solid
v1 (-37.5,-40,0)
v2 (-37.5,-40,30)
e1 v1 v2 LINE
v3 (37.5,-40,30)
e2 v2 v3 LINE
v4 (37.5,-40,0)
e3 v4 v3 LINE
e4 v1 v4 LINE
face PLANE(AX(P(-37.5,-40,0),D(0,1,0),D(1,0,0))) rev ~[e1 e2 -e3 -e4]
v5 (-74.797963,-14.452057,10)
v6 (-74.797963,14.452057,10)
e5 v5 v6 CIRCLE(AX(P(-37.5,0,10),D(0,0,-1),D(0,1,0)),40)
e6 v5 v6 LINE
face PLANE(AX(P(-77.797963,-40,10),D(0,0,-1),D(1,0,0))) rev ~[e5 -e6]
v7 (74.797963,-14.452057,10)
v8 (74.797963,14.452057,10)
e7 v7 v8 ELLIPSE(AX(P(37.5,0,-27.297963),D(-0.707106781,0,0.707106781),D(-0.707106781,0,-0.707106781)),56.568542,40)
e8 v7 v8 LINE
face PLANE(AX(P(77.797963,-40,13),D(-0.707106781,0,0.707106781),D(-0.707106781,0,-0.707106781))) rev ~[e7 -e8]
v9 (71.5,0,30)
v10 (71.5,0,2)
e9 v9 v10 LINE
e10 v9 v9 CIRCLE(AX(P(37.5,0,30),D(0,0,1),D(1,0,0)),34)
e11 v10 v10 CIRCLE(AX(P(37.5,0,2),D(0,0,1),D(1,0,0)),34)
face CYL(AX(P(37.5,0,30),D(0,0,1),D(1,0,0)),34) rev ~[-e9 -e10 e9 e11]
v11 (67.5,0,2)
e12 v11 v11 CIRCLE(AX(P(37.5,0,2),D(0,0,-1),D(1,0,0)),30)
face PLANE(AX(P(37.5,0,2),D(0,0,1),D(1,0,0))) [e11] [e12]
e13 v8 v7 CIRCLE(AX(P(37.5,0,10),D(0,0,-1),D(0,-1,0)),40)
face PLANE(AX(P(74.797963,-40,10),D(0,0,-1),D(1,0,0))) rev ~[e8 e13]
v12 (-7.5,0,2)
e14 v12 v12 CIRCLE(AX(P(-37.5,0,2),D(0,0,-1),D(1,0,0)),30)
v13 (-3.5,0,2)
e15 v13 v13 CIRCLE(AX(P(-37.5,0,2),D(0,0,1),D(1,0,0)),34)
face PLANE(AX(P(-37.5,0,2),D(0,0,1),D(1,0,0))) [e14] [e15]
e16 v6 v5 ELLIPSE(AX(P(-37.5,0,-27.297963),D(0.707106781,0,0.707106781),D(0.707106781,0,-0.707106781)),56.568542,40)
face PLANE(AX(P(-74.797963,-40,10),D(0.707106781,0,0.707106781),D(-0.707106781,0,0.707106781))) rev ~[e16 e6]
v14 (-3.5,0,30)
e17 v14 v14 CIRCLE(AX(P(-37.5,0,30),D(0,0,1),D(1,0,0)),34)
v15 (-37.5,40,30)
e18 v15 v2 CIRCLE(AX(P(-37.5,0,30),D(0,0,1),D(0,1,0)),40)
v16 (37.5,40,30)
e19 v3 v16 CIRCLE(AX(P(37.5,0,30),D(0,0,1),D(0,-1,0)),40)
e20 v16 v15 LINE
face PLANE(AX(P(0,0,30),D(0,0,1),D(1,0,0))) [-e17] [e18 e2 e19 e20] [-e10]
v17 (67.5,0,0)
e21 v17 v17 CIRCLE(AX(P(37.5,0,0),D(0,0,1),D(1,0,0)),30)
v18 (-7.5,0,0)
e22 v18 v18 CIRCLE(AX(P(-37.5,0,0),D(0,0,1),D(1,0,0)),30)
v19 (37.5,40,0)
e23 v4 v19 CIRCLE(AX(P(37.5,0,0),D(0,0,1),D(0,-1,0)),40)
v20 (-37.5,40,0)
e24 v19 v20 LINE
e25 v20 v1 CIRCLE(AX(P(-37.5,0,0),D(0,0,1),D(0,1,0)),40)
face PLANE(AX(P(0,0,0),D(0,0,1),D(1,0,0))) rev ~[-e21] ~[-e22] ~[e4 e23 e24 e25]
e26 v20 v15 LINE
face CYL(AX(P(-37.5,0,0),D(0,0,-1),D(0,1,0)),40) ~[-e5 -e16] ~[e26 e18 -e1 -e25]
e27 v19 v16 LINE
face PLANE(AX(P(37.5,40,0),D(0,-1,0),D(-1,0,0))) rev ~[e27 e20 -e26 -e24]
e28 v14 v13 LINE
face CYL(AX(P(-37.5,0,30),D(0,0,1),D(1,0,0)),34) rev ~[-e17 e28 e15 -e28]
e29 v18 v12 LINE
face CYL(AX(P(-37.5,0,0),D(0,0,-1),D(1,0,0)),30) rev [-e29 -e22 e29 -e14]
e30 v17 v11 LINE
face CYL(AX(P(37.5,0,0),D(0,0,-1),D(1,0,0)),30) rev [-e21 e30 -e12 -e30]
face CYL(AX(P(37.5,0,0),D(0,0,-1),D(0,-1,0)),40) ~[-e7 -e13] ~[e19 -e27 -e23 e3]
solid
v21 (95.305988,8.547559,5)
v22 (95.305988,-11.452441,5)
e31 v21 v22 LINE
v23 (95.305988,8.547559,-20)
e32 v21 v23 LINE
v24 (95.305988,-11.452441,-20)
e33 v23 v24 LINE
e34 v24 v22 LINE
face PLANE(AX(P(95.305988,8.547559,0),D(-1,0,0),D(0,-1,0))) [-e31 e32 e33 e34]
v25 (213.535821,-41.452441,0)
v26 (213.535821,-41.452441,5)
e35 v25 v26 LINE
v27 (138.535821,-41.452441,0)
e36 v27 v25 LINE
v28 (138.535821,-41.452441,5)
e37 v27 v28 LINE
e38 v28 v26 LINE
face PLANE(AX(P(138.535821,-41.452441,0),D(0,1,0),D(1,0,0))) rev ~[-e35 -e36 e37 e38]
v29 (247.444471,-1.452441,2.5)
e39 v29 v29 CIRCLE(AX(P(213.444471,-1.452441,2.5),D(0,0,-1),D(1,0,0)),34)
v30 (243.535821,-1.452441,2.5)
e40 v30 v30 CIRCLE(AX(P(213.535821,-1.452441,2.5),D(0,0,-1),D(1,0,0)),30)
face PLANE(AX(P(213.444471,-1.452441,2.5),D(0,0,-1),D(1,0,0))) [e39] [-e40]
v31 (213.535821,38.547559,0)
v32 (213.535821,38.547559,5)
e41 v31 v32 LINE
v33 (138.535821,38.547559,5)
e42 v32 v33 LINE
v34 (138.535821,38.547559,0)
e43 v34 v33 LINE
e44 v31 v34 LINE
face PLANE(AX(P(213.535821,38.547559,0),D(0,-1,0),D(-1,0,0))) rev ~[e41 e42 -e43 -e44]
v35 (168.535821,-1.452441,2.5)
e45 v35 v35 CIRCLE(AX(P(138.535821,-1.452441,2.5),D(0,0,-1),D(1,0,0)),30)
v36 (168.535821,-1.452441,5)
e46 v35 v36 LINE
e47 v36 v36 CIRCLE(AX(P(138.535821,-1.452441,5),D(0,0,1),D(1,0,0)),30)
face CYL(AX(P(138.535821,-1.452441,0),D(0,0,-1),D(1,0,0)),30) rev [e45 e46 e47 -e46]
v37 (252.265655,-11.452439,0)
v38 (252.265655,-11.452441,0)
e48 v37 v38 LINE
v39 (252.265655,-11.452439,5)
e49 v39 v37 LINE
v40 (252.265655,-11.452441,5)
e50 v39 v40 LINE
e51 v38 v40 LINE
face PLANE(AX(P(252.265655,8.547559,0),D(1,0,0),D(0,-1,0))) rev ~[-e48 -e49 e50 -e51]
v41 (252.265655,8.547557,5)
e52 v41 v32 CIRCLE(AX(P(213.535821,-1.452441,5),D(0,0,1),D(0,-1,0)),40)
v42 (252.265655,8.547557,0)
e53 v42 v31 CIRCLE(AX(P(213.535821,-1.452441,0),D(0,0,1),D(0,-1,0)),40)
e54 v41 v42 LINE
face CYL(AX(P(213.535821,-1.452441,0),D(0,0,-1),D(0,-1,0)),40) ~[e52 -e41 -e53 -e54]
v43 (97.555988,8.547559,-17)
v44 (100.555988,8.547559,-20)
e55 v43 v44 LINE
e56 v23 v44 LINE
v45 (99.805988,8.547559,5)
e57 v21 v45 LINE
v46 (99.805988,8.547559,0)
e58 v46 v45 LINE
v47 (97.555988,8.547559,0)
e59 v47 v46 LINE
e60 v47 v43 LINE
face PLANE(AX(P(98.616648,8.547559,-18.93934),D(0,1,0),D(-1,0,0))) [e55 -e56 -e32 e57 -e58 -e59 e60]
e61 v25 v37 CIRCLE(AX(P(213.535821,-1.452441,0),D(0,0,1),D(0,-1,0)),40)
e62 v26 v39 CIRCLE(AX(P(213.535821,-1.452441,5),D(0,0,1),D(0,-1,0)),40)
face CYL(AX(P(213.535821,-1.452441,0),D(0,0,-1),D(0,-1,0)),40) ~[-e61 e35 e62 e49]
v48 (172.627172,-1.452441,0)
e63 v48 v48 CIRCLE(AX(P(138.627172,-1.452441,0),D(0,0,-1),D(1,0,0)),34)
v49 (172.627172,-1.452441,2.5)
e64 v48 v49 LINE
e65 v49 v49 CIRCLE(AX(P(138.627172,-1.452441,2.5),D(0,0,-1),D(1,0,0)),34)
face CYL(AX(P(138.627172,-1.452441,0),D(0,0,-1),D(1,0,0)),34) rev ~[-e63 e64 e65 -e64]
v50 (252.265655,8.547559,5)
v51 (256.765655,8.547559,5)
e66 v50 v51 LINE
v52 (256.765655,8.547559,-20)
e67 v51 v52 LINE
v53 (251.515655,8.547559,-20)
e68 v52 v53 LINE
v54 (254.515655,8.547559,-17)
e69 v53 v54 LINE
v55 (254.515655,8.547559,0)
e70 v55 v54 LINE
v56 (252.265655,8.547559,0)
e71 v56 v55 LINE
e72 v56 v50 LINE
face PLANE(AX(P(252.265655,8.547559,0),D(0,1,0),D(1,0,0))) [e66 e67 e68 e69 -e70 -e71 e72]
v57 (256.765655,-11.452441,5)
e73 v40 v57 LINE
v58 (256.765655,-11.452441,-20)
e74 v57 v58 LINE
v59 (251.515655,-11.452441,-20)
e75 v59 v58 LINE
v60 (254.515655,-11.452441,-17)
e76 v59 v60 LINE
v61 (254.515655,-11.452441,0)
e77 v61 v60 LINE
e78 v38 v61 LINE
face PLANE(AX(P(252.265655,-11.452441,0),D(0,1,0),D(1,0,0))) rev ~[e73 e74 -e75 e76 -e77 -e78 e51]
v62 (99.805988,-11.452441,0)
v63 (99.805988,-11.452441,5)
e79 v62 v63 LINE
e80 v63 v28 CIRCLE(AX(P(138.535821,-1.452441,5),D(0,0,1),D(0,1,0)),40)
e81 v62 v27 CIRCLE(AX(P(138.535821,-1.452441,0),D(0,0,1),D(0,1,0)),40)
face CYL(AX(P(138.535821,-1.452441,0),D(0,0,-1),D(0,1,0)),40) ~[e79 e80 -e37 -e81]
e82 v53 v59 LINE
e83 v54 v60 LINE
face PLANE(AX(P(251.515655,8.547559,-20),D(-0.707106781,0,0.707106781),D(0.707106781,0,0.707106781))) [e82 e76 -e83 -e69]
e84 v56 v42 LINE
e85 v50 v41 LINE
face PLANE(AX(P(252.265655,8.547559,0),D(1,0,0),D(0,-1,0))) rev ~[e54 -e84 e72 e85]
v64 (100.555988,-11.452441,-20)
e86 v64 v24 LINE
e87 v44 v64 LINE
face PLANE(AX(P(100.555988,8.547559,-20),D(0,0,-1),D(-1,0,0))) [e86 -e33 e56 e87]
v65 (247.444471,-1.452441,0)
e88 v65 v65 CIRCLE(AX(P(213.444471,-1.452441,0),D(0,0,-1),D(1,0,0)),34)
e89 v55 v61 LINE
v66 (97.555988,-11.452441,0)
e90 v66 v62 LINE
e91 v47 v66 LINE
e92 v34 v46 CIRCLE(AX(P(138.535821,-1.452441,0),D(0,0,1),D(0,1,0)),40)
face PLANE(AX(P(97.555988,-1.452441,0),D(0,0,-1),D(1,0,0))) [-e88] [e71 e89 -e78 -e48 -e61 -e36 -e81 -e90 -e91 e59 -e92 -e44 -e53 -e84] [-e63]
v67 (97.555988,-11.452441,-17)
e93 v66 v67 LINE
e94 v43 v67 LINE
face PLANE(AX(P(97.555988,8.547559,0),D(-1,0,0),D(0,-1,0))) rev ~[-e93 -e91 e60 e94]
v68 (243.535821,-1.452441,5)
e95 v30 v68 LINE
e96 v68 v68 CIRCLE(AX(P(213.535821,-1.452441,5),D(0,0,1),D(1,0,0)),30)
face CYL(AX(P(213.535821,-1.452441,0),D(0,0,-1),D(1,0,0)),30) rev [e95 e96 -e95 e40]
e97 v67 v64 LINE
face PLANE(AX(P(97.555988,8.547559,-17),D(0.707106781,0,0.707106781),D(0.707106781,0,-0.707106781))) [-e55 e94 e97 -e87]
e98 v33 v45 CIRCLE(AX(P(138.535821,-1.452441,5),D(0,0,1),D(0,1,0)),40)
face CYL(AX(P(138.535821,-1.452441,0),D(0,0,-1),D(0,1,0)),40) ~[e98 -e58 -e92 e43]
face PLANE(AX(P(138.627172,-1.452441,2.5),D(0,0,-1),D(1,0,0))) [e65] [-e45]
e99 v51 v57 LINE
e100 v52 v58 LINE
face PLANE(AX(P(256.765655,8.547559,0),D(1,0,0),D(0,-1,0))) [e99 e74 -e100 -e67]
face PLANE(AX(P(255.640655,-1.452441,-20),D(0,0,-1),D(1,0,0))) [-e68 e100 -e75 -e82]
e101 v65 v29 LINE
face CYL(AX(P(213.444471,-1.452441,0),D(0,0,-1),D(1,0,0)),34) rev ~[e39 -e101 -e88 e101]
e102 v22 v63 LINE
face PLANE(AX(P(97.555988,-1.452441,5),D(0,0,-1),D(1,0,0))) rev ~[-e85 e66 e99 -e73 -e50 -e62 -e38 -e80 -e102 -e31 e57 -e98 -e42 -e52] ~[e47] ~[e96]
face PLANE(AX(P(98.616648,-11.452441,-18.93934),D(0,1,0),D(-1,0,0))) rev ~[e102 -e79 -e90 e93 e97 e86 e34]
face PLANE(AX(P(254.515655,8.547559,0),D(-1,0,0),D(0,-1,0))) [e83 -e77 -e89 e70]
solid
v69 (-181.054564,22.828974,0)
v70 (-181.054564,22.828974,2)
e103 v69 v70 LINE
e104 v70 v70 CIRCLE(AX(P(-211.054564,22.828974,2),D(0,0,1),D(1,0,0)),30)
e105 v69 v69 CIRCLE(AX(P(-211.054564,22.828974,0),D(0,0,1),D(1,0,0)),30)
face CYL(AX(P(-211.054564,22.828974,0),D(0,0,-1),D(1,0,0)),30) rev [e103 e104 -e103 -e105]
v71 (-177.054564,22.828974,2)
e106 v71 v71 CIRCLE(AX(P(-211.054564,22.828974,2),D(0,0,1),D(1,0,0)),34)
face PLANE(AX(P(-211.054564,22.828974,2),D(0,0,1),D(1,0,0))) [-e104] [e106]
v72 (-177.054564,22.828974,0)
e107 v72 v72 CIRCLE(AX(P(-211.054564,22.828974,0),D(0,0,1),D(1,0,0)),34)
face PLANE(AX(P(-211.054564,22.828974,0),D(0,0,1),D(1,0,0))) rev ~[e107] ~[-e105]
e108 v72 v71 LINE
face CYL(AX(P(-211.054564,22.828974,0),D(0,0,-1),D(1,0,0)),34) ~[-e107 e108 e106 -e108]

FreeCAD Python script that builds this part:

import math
import FreeCAD as App
import Part
import Sketcher

V = App.Vector
Q = App.Units.Quantity


def add_polygon(sketch, points):
    """Adds a closed chain of lines whose ends are joined by coincident constraints."""
    first, n = sketch.GeometryCount, len(points)
    for a, b in zip(points, points[1:] + points[:1]):
        sketch.addGeometry(Part.LineSegment(App.Vector(*a, 0), App.Vector(*b, 0)), False)
    for i in range(n):
        sketch.addConstraint(Sketcher.Constraint("Coincident", first + i, 2, first + (i + 1) % n, 1))

doc = App.newDocument("Part")
body = doc.addObject("PartDesign::Body", "Body")

sketch1 = doc.addObject("Sketcher::SketchObject", "Sketch")
body.addObject(sketch1)
sketch1.AttachmentSupport = (doc.XY_Plane, [""])
sketch1.MapMode = "FlatFace"
sketch1.addGeometry([
    Part.LineSegment(V(38, 40, 0), V(-38, 40, 0)),
    Part.ArcOfCircle(Part.Circle(V(-38, 0, 0), V(0, 0, 1), 40), math.radians(90), math.radians(270)),
    Part.LineSegment(V(-38, -40, 0), V(38, -40, 0)),
    Part.ArcOfCircle(Part.Circle(V(38, 0, 0), V(0, 0, 1), 40), math.radians(-90), math.radians(90)),
    Part.Circle(V(-38, 0, 0), V(0, 0, 1), 30),
    Part.Circle(V(38, 0, 0), V(0, 0, 1), 30),
], False)
sketch1.addConstraint([
    Sketcher.Constraint("Tangent", 0, 2, 1, 1),
    Sketcher.Constraint("Tangent", 1, 2, 2, 1),
    Sketcher.Constraint("Tangent", 2, 2, 3, 1),
    Sketcher.Constraint("Tangent", 3, 2, 0, 1),
    Sketcher.Constraint("Horizontal", 0),
    Sketcher.Constraint("Horizontal", 2),
    Sketcher.Constraint("Coincident", 4, 3, 1, 3),
    Sketcher.Constraint("Coincident", 5, 3, 3, 3),
    Sketcher.Constraint("Equal", 4, 5),
    Sketcher.Constraint("Symmetric", 1, 3, 3, 3, -1, 1),
    Sketcher.Constraint("Diameter", 4, Q("60 mm")),
    Sketcher.Constraint("Radius", 1, Q("40 mm")),
    Sketcher.Constraint("DistanceX", 0, 2, 0, 1, Q("75 mm")),
])
pad1 = doc.addObject("PartDesign::Pad", "Pad")
body.addObject(pad1)
pad1.Profile = sketch1
pad1.Length = 30

sketch2 = doc.addObject("Sketcher::SketchObject", "Sketch001")
body.addObject(sketch2)
sketch2.AttachmentSupport = (doc.XY_Plane, [""])
sketch2.MapMode = "FlatFace"
sketch2.AttachmentOffset = App.Placement(V(0, 0, 30), App.Rotation())
sketch2.addGeometry([
    Part.Circle(V(-38, 0, 0), V(0, 0, 1), 34),
    Part.Circle(V(38, 0, 0), V(0, 0, 1), 34),
], False)
sketch2.addConstraint([
    Sketcher.Constraint("Equal", 0, 1),
    Sketcher.Constraint("Symmetric", 0, 3, 1, 3, -1, 1),
    Sketcher.Constraint("PointOnObject", 0, 3, -1),
    Sketcher.Constraint("Diameter", 0, Q("68 mm")),
    Sketcher.Constraint("DistanceX", 0, 3, 1, 3, Q("75 mm")),
])
pocket1 = doc.addObject("PartDesign::Pocket", "Pocket")
body.addObject(pocket1)
pocket1.Profile = sketch2
pocket1.Length = 28

sketch3 = doc.addObject("Sketcher::SketchObject", "Sketch002")
body.addObject(sketch3)
sketch3.AttachmentSupport = (doc.XZ_Plane, [""])
sketch3.MapMode = "FlatFace"
sketch3.AttachmentOffset = App.Placement(V(0, 0, 40), App.Rotation())
add_polygon(sketch3, [(-74.8, 10), (-77.8, 13), (-77.8, 10)])
add_polygon(sketch3, [(77.8, 13), (74.8, 10), (77.8, 10)])
sketch3.addConstraint([
    Sketcher.Constraint("Vertical", 1),
    Sketcher.Constraint("Horizontal", 2),
    Sketcher.Constraint("Horizontal", 4),
    Sketcher.Constraint("Vertical", 5),
    Sketcher.Constraint("Symmetric", 2, 2, 3, 2, -2),
    Sketcher.Constraint("Symmetric", 0, 2, 5, 2, -2),
    Sketcher.Constraint("Perpendicular", 0, 3),
    Sketcher.Constraint("DistanceX", 2, 1, 2, 2, Q("3 mm")),
    Sketcher.Constraint("DistanceY", -1, 1, 0, 2, Q("13 mm")),
    Sketcher.Constraint("DistanceX", 0, 2, -1, 1, Q("77.797963 mm")),
])
pocket2 = doc.addObject("PartDesign::Pocket", "Pocket001")
body.addObject(pocket2)
pocket2.Profile = sketch3
pocket2.Type = "ThroughAll"
body2 = doc.addObject("PartDesign::Body", "Body001")

sketch4 = doc.addObject("Sketcher::SketchObject", "Sketch003")
body2.addObject(sketch4)
sketch4.AttachmentSupport = (doc.getObject("XY_Plane001"), [""])
sketch4.MapMode = "FlatFace"
sketch4.addGeometry([
    Part.Circle(V(-211, 23, 0), V(0, 0, 1), 34),
    Part.Circle(V(-211, 23, 0), V(0, 0, 1), 30),
], False)
sketch4.addConstraint([
    Sketcher.Constraint("Coincident", 1, 3, 0, 3),
    Sketcher.Constraint("Diameter", 0, Q("68 mm")),
    Sketcher.Constraint("Diameter", 1, Q("60 mm")),
    Sketcher.Constraint("DistanceX", 0, 3, -1, 1, Q("211.054564 mm")),
    Sketcher.Constraint("DistanceY", -1, 1, 0, 3, Q("22.828974 mm")),
])
pad2 = doc.addObject("PartDesign::Pad", "Pad001")
body2.addObject(pad2)
pad2.Profile = sketch4
pad2.Length = 2
body3 = doc.addObject("PartDesign::Body", "Body002")

sketch5 = doc.addObject("Sketcher::SketchObject", "Sketch004")
body3.addObject(sketch5)
sketch5.AttachmentSupport = (doc.getObject("XY_Plane002"), [""])
sketch5.MapMode = "FlatFace"
sketch5.addGeometry([
    Part.LineSegment(V(214, 39, 0), V(139, 39, 0)),
    Part.ArcOfCircle(Part.Circle(V(139, -1, 0), V(0, 0, 1), 40), math.radians(90), math.radians(270)),
    Part.LineSegment(V(139, -41, 0), V(214, -41, 0)),
    Part.ArcOfCircle(Part.Circle(V(214, -1, 0), V(0, 0, 1), 40), math.radians(-90), math.radians(90)),
    Part.Circle(V(139, -1, 0), V(0, 0, 1), 30),
    Part.Circle(V(214, -1, 0), V(0, 0, 1), 30),
], False)
sketch5.addConstraint([
    Sketcher.Constraint("Tangent", 0, 2, 1, 1),
    Sketcher.Constraint("Tangent", 1, 2, 2, 1),
    Sketcher.Constraint("Tangent", 2, 2, 3, 1),
    Sketcher.Constraint("Tangent", 3, 2, 0, 1),
    Sketcher.Constraint("Horizontal", 0),
    Sketcher.Constraint("Horizontal", 2),
    Sketcher.Constraint("Coincident", 4, 3, 1, 3),
    Sketcher.Constraint("Coincident", 5, 3, 3, 3),
    Sketcher.Constraint("Equal", 4, 5),
    Sketcher.Constraint("Diameter", 4, Q("60 mm")),
    Sketcher.Constraint("Radius", 1, Q("40 mm")),
    Sketcher.Constraint("DistanceX", 0, 2, 0, 1, Q("75 mm")),
    Sketcher.Constraint("DistanceX", -1, 1, 1, 3, Q("138.535821 mm")),
    Sketcher.Constraint("DistanceY", 1, 3, -1, 1, Q("1.452441 mm")),
])
pad3 = doc.addObject("PartDesign::Pad", "Pad002")
body3.addObject(pad3)
pad3.Profile = sketch5
pad3.Length = 5

sketch6 = doc.addObject("Sketcher::SketchObject", "Sketch005")
body3.addObject(sketch6)
sketch6.AttachmentSupport = (doc.getObject("XY_Plane002"), [""])
sketch6.MapMode = "FlatFace"
sketch6.addGeometry([
    Part.Circle(V(139, -1, 0), V(0, 0, 1), 34),
    Part.Circle(V(213, -1, 0), V(0, 0, 1), 34),
], False)
sketch6.addConstraint([
    Sketcher.Constraint("Equal", 0, 1),
    Sketcher.Constraint("Horizontal", 0, 3, 1, 3),
    Sketcher.Constraint("Diameter", 0, Q("68 mm")),
    Sketcher.Constraint("DistanceX", 0, 3, 1, 3, Q("74.817299 mm")),
    Sketcher.Constraint("DistanceX", -1, 1, 0, 3, Q("138.627172 mm")),
    Sketcher.Constraint("DistanceY", 0, 3, -1, 1, Q("1.452441 mm")),
])
pocket3 = doc.addObject("PartDesign::Pocket", "Pocket002")
body3.addObject(pocket3)
pocket3.Profile = sketch6
pocket3.Length = 2.5
pocket3.Reversed = True

sketch7 = doc.addObject("Sketcher::SketchObject", "Sketch006")
body3.addObject(sketch7)
sketch7.AttachmentSupport = (doc.getObject("XY_Plane002"), [""])
sketch7.MapMode = "FlatFace"
add_polygon(sketch7, [(95.3, -11.5), (95.3, 8.5), (99.8, 8.5), (99.8, -11.5)])
add_polygon(sketch7, [(252.3, -11.5), (252.3, 8.5), (256.8, 8.5), (256.8, -11.5)])
sketch7.addConstraint([
    Sketcher.Constraint("Vertical", 0),
    Sketcher.Constraint("Horizontal", 1),
    Sketcher.Constraint("Vertical", 2),
    Sketcher.Constraint("Horizontal", 3),
    Sketcher.Constraint("Vertical", 4),
    Sketcher.Constraint("Horizontal", 5),
    Sketcher.Constraint("Vertical", 6),
    Sketcher.Constraint("Horizontal", 7),
    Sketcher.Constraint("Horizontal", 1, 2, 4, 2),
    Sketcher.Constraint("Horizontal", 3, 2, 6, 2),
    Sketcher.Constraint("Equal", 3, 5),
    Sketcher.Constraint("DistanceY", 0, 1, 0, 2, Q("20 mm")),
    Sketcher.Constraint("DistanceX", 1, 1, 1, 2, Q("4.5 mm")),
    Sketcher.Constraint("DistanceX", -1, 1, 0, 2, Q("95.305988 mm")),
    Sketcher.Constraint("DistanceY", -1, 1, 0, 2, Q("8.547559 mm")),
    Sketcher.Constraint("DistanceX", -1, 1, 4, 2, Q("252.265655 mm")),
])
pad4 = doc.addObject("PartDesign::Pad", "Pad003")
body3.addObject(pad4)
pad4.Profile = sketch7
pad4.Type = "UpToLast"

sketch8 = doc.addObject("Sketcher::SketchObject", "Sketch007")
body3.addObject(sketch8)
sketch8.AttachmentSupport = (doc.getObject("XY_Plane002"), [""])
sketch8.MapMode = "FlatFace"
add_polygon(sketch8, [(95.3, -11.5), (95.3, 8.5), (97.6, 8.5), (97.6, -11.5)])
add_polygon(sketch8, [(254.5, -11.5), (254.5, 8.5), (256.8, 8.5), (256.8, -11.5)])
sketch8.addConstraint([
    Sketcher.Constraint("Vertical", 0),
    Sketcher.Constraint("Horizontal", 1),
    Sketcher.Constraint("Vertical", 2),
    Sketcher.Constraint("Horizontal", 3),
    Sketcher.Constraint("Vertical", 4),
    Sketcher.Constraint("Horizontal", 5),
    Sketcher.Constraint("Vertical", 6),
    Sketcher.Constraint("Horizontal", 7),
    Sketcher.Constraint("Horizontal", 1, 2, 4, 2),
    Sketcher.Constraint("Horizontal", 3, 2, 6, 2),
    Sketcher.Constraint("Equal", 3, 5),
    Sketcher.Constraint("DistanceY", 0, 1, 0, 2, Q("20 mm")),
    Sketcher.Constraint("DistanceX", 1, 1, 1, 2, Q("2.25 mm")),
    Sketcher.Constraint("DistanceX", -1, 1, 0, 2, Q("95.305988 mm")),
    Sketcher.Constraint("DistanceY", -1, 1, 0, 2, Q("8.547559 mm")),
    Sketcher.Constraint("DistanceX", -1, 1, 4, 2, Q("254.515655 mm")),
])
pad5 = doc.addObject("PartDesign::Pad", "Pad004")
body3.addObject(pad5)
pad5.Profile = sketch8
pad5.Length = 20
pad5.Reversed = True

sketch9 = doc.addObject("Sketcher::SketchObject", "Sketch008")
body3.addObject(sketch9)
sketch9.AttachmentSupport = (doc.getObject("XZ_Plane002"), [""])
sketch9.MapMode = "FlatFace"
sketch9.AttachmentOffset = App.Placement(V(0, 0, -8.547559), App.Rotation())
add_polygon(sketch9, [(97.6, -20), (97.6, -17), (100.6, -20)])
add_polygon(sketch9, [(251.5, -20), (254.5, -17), (254.5, -20)])
sketch9.addConstraint([
    Sketcher.Constraint("Vertical", 0),
    Sketcher.Constraint("Horizontal", 2),
    Sketcher.Constraint("Vertical", 4),
    Sketcher.Constraint("Horizontal", 5),
    Sketcher.Constraint("Perpendicular", 1, 3),
    Sketcher.Constraint("Horizontal", 0, 2, 3, 2),
    Sketcher.Constraint("Horizontal", 2, 2, 4, 2),
    Sketcher.Constraint("Equal", 2, 5),
    Sketcher.Constraint("DistanceX", 2, 2, 2, 1, Q("3 mm")),
    Sketcher.Constraint("DistanceY", 0, 2, -1, 1, Q("17 mm")),
    Sketcher.Constraint("DistanceX", -1, 1, 0, 2, Q("97.555988 mm")),
    Sketcher.Constraint("DistanceX", -1, 1, 3, 2, Q("254.515655 mm")),
])
pad6 = doc.addObject("PartDesign::Pad", "Pad005")
body3.addObject(pad6)
pad6.Profile = sketch9
pad6.Length = 20

doc.recompute()
